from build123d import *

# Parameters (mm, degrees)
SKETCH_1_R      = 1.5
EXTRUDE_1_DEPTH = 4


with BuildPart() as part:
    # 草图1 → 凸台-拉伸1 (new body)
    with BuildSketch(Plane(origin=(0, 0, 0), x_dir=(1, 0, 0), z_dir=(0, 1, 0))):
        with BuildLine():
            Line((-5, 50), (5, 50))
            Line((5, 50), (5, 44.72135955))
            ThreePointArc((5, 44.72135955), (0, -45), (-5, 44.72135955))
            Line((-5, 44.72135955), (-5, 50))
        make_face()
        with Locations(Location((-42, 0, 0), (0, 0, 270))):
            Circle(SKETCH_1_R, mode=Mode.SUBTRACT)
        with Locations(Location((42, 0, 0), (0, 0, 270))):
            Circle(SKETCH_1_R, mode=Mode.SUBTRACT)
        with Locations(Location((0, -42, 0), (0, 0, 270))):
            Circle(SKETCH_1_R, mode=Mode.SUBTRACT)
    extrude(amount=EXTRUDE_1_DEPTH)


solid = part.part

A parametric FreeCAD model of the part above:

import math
import FreeCAD as App
import Part
import Sketcher

doc = App.newDocument("Part")
body = doc.addObject("PartDesign::Body", "Body")

sketch1 = doc.addObject("Sketcher::SketchObject", "Sketch")
body.addObject(sketch1)
sketch1.AttachmentSupport = (doc.XZ_Plane, [""])
sketch1.MapMode = "FlatFace"
sketch1.addGeometry([
    Part.LineSegment(App.Vector(5, -50, 0), App.Vector(-5, -50, 0)),
    Part.LineSegment(App.Vector(-5, -50, 0), App.Vector(-5, -44.7, 0)),
    Part.ArcOfCircle(Part.Circle(App.Vector(0, 0, 0), App.Vector(0, 0, 1), 45), math.radians(-84), math.radians(264)),
    Part.LineSegment(App.Vector(5, -44.7, 0), App.Vector(5, -50, 0)),
    Part.Circle(App.Vector(0, 42, 0), App.Vector(0, 0, 1), 1.5),
    Part.Circle(App.Vector(42, 0, 0), App.Vector(0, 0, 1), 1.5),
    Part.Circle(App.Vector(-42, 0, 0), App.Vector(0, 0, 1), 1.5),
], False)
sketch1.addConstraint([
    Sketcher.Constraint("Coincident", 0, 2, 1, 1),
    Sketcher.Constraint("Coincident", 1, 2, 2, 2),
    Sketcher.Constraint("Coincident", 2, 1, 3, 1),
    Sketcher.Constraint("Coincident", 3, 2, 0, 1),
    Sketcher.Constraint("Horizontal", 0),
    Sketcher.Constraint("Vertical", 1),
    Sketcher.Constraint("Vertical", 3),
    Sketcher.Constraint("Coincident", 2, 3, -1, 1),
    Sketcher.Constraint("Equal", 4, 5),
    Sketcher.Constraint("Equal", 5, 6),
    Sketcher.Constraint("Symmetric", 5, 3, 6, 3, -1, 1),
    Sketcher.Constraint("PointOnObject", 4, 3, -2),
    Sketcher.Constraint("PointOnObject", 5, 3, -1),
    Sketcher.Constraint("Horizontal", 1, 2, 2, 1),
    Sketcher.Constraint("Diameter", 4, 3.0),
    Sketcher.Constraint("Radius", 2, 45.0),
    Sketcher.Constraint("DistanceX", 0, 2, 0, 1, 10.0),
    Sketcher.Constraint("DistanceY", -1, 1, 4, 3, 42.0),
    Sketcher.Constraint("DistanceX", -1, 1, 5, 3, 42.0),
    Sketcher.Constraint("DistanceY", 0, 2, -1, 1, 50.0),
])
pad1 = doc.addObject("PartDesign::Pad", "Pad")
body.addObject(pad1)
pad1.Profile = sketch1
pad1.Length = 4
pad1.Reversed = True

doc.recompute()
